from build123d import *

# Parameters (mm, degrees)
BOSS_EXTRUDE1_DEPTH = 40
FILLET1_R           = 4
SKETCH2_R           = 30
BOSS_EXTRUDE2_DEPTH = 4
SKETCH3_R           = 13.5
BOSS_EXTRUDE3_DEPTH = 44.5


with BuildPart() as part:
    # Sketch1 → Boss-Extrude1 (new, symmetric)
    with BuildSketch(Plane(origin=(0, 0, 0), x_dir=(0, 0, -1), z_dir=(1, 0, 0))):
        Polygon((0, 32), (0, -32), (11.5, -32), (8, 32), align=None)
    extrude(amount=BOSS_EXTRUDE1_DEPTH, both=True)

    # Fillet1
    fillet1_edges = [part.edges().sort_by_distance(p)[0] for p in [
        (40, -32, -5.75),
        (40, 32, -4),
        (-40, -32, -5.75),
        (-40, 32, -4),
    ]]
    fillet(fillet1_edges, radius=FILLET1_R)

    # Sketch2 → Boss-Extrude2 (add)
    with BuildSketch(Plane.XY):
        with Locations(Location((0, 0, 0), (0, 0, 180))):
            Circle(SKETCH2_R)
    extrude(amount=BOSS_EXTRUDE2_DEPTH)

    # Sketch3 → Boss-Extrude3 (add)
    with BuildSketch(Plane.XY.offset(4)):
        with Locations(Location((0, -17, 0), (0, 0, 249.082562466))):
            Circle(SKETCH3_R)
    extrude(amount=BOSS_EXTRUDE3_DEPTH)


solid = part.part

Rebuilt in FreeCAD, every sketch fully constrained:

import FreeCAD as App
import Part
import Sketcher

V = App.Vector


def edges_at(feature, points):
    """Names of the edges that pass closest to the given points."""
    edges = feature.Shape.Edges
    near = lambda p: min(range(len(edges)), key=lambda i: edges[i].distToShape(Part.Vertex(*p))[0])
    return sorted({f"Edge{near(p) + 1}" for p in points})

doc = App.newDocument("Part")
body = doc.addObject("PartDesign::Body", "Body")

# Sketch on YZ plane
sketch1 = body.newObject("Sketcher::SketchObject", "Sketch")
sketch1.AttachmentSupport = (doc.getObject("YZ_Plane"), [""])
sketch1.MapMode = "FlatFace"
sketch1.addGeometry([
    Part.LineSegment(V(32, 0, 0), V(-32, 0, 0)),
    Part.LineSegment(V(-32, 0, 0), V(-32, -12, 0)),
    Part.LineSegment(V(-32, -12, 0), V(32, -8, 0)),
    Part.LineSegment(V(32, -8, 0), V(32, 0, 0)),
], False)
sketch1.addConstraint([
    Sketcher.Constraint("Coincident", 0, 2, 1, 1),
    Sketcher.Constraint("Coincident", 1, 2, 2, 1),
    Sketcher.Constraint("Coincident", 2, 2, 3, 1),
    Sketcher.Constraint("Coincident", 3, 2, 0, 1),
    Sketcher.Constraint("Horizontal", 0),
    Sketcher.Constraint("Vertical", 1),
    Sketcher.Constraint("Vertical", 3),
    Sketcher.Constraint("Symmetric", 0, 2, 3, 2, -1, 1),
    Sketcher.Constraint("DistanceX", 0, 2, 0, 1, 64.0),
    Sketcher.Constraint("DistanceY", 3, 1, 3, 2, 8.0),
    Sketcher.Constraint("DistanceY", 1, 2, 1, 1, 11.5),
])
pad1 = body.newObject("PartDesign::Pad", "Pad")
pad1.Profile = sketch1
pad1.Length = 80
pad1.Midplane = True
doc.recompute()

fillet = body.newObject("PartDesign::Fillet", "Fillet")
fillet.Base = (pad1, edges_at(pad1, [
    (40, -32, -5.75),
    (40, 32, -4),
    (-40, -32, -5.75),
    (-40, 32, -4),
]))
fillet.Radius = 4

# Sketch on XY plane
sketch2 = body.newObject("Sketcher::SketchObject", "Sketch001")
sketch2.AttachmentSupport = (doc.getObject("XY_Plane"), [""])
sketch2.MapMode = "FlatFace"
sketch2.addGeometry(Part.Circle(V(0, 0, 0), V(0, 0, 1), 30), False)
sketch2.addConstraint([
    Sketcher.Constraint("Coincident", 0, 3, -1, 1),
    Sketcher.Constraint("Diameter", 0, 60.0),
])
pad2 = body.newObject("PartDesign::Pad", "Pad001")
pad2.Profile = sketch2
pad2.Length = 4

# Sketch on XY plane
sketch3 = body.newObject("Sketcher::SketchObject", "Sketch002")
sketch3.AttachmentSupport = (doc.getObject("XY_Plane"), [""])
sketch3.MapMode = "FlatFace"
sketch3.AttachmentOffset = App.Placement(V(0, 0, 4), App.Rotation())
sketch3.addGeometry(Part.Circle(V(0, -17, 0), V(0, 0, 1), 14), False)
sketch3.addConstraint([
    Sketcher.Constraint("PointOnObject", 0, 3, -2),
    Sketcher.Constraint("Diameter", 0, 27.0),
    Sketcher.Constraint("DistanceY", 0, 3, -1, 1, 17.0),
])
pad3 = body.newObject("PartDesign::Pad", "Pad002")
pad3.Profile = sketch3
pad3.Length = 44.5

doc.recompute()
